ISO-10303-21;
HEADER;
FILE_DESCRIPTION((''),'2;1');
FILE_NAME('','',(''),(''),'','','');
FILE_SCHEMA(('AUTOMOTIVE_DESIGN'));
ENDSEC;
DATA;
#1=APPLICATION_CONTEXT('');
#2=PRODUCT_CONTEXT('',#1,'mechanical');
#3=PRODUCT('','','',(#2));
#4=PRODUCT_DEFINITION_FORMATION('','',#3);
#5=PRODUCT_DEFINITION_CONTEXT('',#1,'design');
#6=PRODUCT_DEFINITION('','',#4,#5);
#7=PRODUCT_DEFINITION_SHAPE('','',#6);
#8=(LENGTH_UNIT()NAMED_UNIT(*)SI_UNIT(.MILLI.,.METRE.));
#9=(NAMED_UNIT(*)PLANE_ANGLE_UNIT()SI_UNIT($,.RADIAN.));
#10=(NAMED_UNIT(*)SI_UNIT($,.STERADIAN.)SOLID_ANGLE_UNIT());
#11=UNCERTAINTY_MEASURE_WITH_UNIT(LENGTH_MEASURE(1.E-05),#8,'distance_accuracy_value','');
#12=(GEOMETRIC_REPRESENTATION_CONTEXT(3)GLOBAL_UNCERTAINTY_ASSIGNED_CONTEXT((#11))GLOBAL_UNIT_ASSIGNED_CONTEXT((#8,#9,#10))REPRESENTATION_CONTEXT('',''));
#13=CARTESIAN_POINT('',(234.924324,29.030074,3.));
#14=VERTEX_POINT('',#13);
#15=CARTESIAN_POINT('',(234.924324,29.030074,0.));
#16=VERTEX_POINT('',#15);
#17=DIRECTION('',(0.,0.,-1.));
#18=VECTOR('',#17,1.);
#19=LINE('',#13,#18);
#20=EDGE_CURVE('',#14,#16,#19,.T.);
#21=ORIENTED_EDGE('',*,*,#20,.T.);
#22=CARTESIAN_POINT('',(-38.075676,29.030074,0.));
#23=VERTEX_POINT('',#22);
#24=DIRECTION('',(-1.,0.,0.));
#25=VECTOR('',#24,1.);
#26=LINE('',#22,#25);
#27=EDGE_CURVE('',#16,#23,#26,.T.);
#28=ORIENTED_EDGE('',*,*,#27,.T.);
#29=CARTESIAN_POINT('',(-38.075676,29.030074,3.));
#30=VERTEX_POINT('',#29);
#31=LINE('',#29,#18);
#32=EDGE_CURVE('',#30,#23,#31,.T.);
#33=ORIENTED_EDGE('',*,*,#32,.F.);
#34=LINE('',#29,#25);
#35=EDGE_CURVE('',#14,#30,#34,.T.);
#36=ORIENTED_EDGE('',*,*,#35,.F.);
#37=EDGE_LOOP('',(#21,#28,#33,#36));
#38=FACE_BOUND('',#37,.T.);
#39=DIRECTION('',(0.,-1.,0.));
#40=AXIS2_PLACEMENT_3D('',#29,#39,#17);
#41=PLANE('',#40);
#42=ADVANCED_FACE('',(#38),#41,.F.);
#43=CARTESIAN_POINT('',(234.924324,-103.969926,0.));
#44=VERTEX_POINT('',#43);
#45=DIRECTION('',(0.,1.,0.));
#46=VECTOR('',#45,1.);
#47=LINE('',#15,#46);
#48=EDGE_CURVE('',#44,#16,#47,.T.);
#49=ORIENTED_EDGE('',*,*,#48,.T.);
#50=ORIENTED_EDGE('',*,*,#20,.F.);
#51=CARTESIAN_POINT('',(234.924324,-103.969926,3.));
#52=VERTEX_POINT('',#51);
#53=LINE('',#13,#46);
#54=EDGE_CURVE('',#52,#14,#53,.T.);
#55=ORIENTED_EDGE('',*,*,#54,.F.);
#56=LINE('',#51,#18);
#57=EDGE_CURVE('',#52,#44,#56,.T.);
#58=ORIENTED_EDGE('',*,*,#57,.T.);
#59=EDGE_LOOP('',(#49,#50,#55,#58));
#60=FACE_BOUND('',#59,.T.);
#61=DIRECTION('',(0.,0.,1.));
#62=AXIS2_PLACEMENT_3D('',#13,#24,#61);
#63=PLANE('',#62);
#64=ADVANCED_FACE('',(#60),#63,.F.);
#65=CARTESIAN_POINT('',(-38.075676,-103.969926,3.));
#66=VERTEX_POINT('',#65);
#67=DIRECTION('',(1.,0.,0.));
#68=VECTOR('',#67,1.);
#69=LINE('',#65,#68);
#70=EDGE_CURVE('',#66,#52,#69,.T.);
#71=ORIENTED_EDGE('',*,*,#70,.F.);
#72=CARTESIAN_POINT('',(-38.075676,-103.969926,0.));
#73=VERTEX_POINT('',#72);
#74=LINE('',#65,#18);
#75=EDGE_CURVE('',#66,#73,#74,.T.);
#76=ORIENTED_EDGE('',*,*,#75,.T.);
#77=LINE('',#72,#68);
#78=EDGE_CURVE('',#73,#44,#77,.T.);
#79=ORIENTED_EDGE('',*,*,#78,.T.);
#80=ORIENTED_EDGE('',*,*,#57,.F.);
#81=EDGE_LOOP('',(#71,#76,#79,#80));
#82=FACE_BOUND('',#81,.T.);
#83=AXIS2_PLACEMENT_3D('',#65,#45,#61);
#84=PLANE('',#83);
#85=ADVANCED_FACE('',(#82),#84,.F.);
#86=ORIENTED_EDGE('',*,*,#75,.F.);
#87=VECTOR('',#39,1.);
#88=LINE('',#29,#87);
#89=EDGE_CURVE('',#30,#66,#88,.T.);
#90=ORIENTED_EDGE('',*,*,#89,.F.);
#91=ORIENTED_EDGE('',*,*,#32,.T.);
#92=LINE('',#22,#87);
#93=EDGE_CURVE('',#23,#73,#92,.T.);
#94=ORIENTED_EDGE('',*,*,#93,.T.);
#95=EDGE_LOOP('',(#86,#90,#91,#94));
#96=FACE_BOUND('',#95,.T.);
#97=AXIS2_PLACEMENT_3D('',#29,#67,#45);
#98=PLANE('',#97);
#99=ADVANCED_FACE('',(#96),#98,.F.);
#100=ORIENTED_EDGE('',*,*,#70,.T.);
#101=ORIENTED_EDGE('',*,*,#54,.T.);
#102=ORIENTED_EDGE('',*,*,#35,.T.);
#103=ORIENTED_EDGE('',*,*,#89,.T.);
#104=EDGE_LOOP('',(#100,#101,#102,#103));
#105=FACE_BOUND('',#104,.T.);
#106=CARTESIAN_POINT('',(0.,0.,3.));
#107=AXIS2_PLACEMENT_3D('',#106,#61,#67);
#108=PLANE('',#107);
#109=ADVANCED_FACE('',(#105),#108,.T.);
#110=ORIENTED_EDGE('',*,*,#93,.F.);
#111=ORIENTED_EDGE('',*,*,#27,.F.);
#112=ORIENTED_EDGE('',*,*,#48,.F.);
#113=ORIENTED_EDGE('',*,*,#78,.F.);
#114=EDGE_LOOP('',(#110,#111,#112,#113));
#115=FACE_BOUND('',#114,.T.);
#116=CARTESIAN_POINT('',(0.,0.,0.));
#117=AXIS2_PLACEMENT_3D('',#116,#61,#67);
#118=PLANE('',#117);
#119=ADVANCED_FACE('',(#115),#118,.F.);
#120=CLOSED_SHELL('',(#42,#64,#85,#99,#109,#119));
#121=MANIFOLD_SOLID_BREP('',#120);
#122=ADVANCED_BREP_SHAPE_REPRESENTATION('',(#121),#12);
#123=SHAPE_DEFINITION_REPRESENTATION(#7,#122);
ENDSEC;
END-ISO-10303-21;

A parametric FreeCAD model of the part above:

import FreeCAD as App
import Part
import Sketcher

V = App.Vector


def add_polygon(sketch, points):
    """Adds a closed chain of lines whose ends are joined by coincident constraints."""
    first, n = sketch.GeometryCount, len(points)
    for a, b in zip(points, points[1:] + points[:1]):
        sketch.addGeometry(Part.LineSegment(App.Vector(*a, 0), App.Vector(*b, 0)), False)
    for i in range(n):
        sketch.addConstraint(Sketcher.Constraint("Coincident", first + i, 2, first + (i + 1) % n, 1))

doc = App.newDocument("Part")
body = doc.addObject("PartDesign::Body", "Body")

# Sketch on XY plane
sketch1 = body.newObject("Sketcher::SketchObject", "Sketch")
sketch1.AttachmentSupport = (doc.getObject("XY_Plane"), [""])
sketch1.MapMode = "FlatFace"
add_polygon(sketch1, [(-38, 29), (-38, -104), (235, -104), (235, 29)])  # lines 0-3
sketch1.addConstraint([
    Sketcher.Constraint("Vertical", 0),
    Sketcher.Constraint("Horizontal", 1),
    Sketcher.Constraint("Vertical", 2),
    Sketcher.Constraint("Horizontal", 3),
    Sketcher.Constraint("DistanceX", 1, 1, 1, 2, 273.0),
    Sketcher.Constraint("DistanceY", 0, 2, 0, 1, 133.0),
    Sketcher.Constraint("DistanceX", 0, 2, -1, 1, 38.075676),
    Sketcher.Constraint("DistanceY", 0, 2, -1, 1, 103.969926),
])
pad1 = body.newObject("PartDesign::Pad", "Pad")
pad1.Profile = sketch1
pad1.Length = 3

doc.recompute()
